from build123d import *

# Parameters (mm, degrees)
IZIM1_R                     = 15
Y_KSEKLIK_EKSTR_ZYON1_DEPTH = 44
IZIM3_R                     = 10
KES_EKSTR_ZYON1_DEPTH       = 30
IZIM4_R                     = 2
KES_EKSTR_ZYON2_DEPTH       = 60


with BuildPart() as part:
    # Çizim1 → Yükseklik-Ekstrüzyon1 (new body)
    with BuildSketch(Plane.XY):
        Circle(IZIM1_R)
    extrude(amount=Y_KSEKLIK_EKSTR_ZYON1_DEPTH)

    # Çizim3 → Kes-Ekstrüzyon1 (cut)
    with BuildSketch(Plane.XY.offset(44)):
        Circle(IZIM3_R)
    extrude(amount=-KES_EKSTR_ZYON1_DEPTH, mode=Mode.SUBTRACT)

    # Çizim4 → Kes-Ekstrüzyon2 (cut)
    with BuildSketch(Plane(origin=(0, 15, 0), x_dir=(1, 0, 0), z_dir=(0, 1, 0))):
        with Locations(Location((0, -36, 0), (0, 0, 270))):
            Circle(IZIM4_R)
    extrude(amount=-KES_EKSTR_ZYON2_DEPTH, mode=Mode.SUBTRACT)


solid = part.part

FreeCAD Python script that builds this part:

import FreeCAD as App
import Part
import Sketcher
from FreeCAD import Vector

doc = App.newDocument("Part")
body = doc.addObject("PartDesign::Body", "Body")

sketch1 = body.newObject("Sketcher::SketchObject", "Sketch")
sketch1.AttachmentSupport = (doc.getObject("XY_Plane"), [""])
sketch1.MapMode = "FlatFace"
sketch1.addGeometry(Part.Circle(Vector(0, 0, 0), Vector(0, 0, 1), 15), False)
sketch1.addConstraint(Sketcher.Constraint("Coincident", 0, 3, -1, 1))
sketch1.addConstraint(Sketcher.Constraint("Diameter", 0, 30.0))
pad1 = body.newObject("PartDesign::Pad", "Pad")
pad1.Profile = sketch1
pad1.Length = 44

sketch2 = body.newObject("Sketcher::SketchObject", "Sketch001")
sketch2.AttachmentSupport = (doc.getObject("XY_Plane"), [""])
sketch2.MapMode = "FlatFace"
sketch2.AttachmentOffset = App.Placement(Vector(0, 0, 44), App.Rotation())
sketch2.addGeometry(Part.Circle(Vector(0, 0, 0), Vector(0, 0, 1), 10), False)
sketch2.addConstraint(Sketcher.Constraint("Coincident", 0, 3, -1, 1))
sketch2.addConstraint(Sketcher.Constraint("Diameter", 0, 20.0))
pocket1 = body.newObject("PartDesign::Pocket", "Pocket")
pocket1.Profile = sketch2
pocket1.Length = 30

sketch3 = body.newObject("Sketcher::SketchObject", "Sketch002")
sketch3.AttachmentSupport = (doc.getObject("XZ_Plane"), [""])
sketch3.MapMode = "FlatFace"
sketch3.AttachmentOffset = App.Placement(Vector(0, 0, -15), App.Rotation())
sketch3.addGeometry(Part.Circle(Vector(0, 36, 0), Vector(0, 0, 1), 2), False)
sketch3.addConstraint(Sketcher.Constraint("PointOnObject", 0, 3, -2))
sketch3.addConstraint(Sketcher.Constraint("Diameter", 0, 4.0))
sketch3.addConstraint(Sketcher.Constraint("DistanceY", -1, 1, 0, 3, 36.0))
pocket2 = body.newObject("PartDesign::Pocket", "Pocket001")
pocket2.Profile = sketch3
pocket2.Length = 60
pocket2.Reversed = True

doc.recompute()
